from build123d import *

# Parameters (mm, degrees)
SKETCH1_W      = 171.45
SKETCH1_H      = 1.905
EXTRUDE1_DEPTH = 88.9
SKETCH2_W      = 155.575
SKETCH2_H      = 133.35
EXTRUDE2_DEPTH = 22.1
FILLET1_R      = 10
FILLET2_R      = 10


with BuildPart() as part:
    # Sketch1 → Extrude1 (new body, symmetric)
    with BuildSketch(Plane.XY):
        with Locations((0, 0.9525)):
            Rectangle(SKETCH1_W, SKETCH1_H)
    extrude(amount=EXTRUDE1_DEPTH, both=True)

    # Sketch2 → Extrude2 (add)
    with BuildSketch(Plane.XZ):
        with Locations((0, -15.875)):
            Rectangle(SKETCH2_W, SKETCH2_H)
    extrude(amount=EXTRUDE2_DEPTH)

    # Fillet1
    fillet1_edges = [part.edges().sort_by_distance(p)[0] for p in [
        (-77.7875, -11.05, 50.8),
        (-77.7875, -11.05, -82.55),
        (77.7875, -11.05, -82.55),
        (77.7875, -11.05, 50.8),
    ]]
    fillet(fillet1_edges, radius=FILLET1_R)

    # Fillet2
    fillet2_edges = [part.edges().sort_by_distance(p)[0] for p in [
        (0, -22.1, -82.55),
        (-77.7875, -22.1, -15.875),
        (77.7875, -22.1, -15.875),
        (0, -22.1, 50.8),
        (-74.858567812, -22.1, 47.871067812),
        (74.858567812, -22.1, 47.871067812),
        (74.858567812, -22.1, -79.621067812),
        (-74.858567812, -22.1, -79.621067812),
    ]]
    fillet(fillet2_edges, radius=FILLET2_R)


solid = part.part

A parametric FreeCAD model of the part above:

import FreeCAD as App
import Part
import Sketcher

V = App.Vector
Q = App.Units.Quantity


def edges_at(feature, points):
    """Names of the edges that pass closest to the given points."""
    edges = feature.Shape.Edges
    near = lambda p: min(range(len(edges)), key=lambda i: edges[i].distToShape(Part.Vertex(*p))[0])
    return sorted({f"Edge{near(p) + 1}" for p in points})


def add_polygon(sketch, points):
    """Adds a closed chain of lines whose ends are joined by coincident constraints."""
    first, n = sketch.GeometryCount, len(points)
    for a, b in zip(points, points[1:] + points[:1]):
        sketch.addGeometry(Part.LineSegment(App.Vector(*a, 0), App.Vector(*b, 0)), False)
    for i in range(n):
        sketch.addConstraint(Sketcher.Constraint("Coincident", first + i, 2, first + (i + 1) % n, 1))

doc = App.newDocument("Part")
body = doc.addObject("PartDesign::Body", "Body")

sketch1 = body.newObject("Sketcher::SketchObject", "Sketch")
sketch1.AttachmentSupport = (doc.getObject("XY_Plane"), [""])
sketch1.MapMode = "FlatFace"
add_polygon(sketch1, [(-85.725, 1.905), (-85.725, 0), (85.725, 0), (85.725, 1.905)])
sketch1.addConstraint(Sketcher.Constraint("Vertical", 0))
sketch1.addConstraint(Sketcher.Constraint("Horizontal", 1))
sketch1.addConstraint(Sketcher.Constraint("Vertical", 2))
sketch1.addConstraint(Sketcher.Constraint("Horizontal", 3))
sketch1.addConstraint(Sketcher.Constraint("Symmetric", 0, 2, 1, 2, -1, 1))
sketch1.addConstraint(Sketcher.Constraint("DistanceX", 1, 1, 1, 2, Q("6.75 in")))
sketch1.addConstraint(Sketcher.Constraint("DistanceY", 0, 2, 0, 1, Q("0.075 in")))
pad1 = body.newObject("PartDesign::Pad", "Pad")
pad1.Profile = sketch1
pad1.Length = Q("7 in")
pad1.Midplane = True

sketch2 = body.newObject("Sketcher::SketchObject", "Sketch001")
sketch2.AttachmentSupport = (doc.getObject("XZ_Plane"), [""])
sketch2.MapMode = "FlatFace"
add_polygon(sketch2, [(-77.7875, 50.8), (-77.7875, -82.55), (77.7875, -82.55), (77.7875, 50.8)])
sketch2.addConstraint(Sketcher.Constraint("Vertical", 0))
sketch2.addConstraint(Sketcher.Constraint("Horizontal", 1))
sketch2.addConstraint(Sketcher.Constraint("Vertical", 2))
sketch2.addConstraint(Sketcher.Constraint("Horizontal", 3))
sketch2.addConstraint(Sketcher.Constraint("DistanceY", -1, 1, 2, 2, Q("2 in")))
sketch2.addConstraint(Sketcher.Constraint("DistanceY", 0, 2, 0, 1, Q("5.25 in")))
sketch2.addConstraint(Sketcher.Constraint("DistanceX", 1, 1, 1, 2, Q("6.125 in")))
sketch2.addConstraint(Sketcher.Constraint("DistanceX", 0, 2, -1, 1, Q("3.0625 in")))
pad2 = body.newObject("PartDesign::Pad", "Pad001")
pad2.Profile = sketch2
pad2.Length = 22.1
doc.recompute()

fillet = body.newObject("PartDesign::Fillet", "Fillet")
fillet.Base = (pad2, edges_at(pad2, [
    (-77.787, -11.05, 50.8),
    (-77.787, -11.05, -82.55),
    (77.787, -11.05, -82.55),
    (77.787, -11.05, 50.8),
]))
fillet.Radius = 10
doc.recompute()

fillet2 = body.newObject("PartDesign::Fillet", "Fillet001")
fillet2.Base = (fillet, edges_at(fillet, [
    (0, -22.1, -82.55),
    (-77.787, -22.1, -15.875),
    (77.787, -22.1, -15.875),
    (0, -22.1, 50.8),
    (-74.859, -22.1, 47.871),
    (74.859, -22.1, 47.871),
    (74.859, -22.1, -79.621),
    (-74.859, -22.1, -79.621),
]))
fillet2.Radius = 10

doc.recompute()
